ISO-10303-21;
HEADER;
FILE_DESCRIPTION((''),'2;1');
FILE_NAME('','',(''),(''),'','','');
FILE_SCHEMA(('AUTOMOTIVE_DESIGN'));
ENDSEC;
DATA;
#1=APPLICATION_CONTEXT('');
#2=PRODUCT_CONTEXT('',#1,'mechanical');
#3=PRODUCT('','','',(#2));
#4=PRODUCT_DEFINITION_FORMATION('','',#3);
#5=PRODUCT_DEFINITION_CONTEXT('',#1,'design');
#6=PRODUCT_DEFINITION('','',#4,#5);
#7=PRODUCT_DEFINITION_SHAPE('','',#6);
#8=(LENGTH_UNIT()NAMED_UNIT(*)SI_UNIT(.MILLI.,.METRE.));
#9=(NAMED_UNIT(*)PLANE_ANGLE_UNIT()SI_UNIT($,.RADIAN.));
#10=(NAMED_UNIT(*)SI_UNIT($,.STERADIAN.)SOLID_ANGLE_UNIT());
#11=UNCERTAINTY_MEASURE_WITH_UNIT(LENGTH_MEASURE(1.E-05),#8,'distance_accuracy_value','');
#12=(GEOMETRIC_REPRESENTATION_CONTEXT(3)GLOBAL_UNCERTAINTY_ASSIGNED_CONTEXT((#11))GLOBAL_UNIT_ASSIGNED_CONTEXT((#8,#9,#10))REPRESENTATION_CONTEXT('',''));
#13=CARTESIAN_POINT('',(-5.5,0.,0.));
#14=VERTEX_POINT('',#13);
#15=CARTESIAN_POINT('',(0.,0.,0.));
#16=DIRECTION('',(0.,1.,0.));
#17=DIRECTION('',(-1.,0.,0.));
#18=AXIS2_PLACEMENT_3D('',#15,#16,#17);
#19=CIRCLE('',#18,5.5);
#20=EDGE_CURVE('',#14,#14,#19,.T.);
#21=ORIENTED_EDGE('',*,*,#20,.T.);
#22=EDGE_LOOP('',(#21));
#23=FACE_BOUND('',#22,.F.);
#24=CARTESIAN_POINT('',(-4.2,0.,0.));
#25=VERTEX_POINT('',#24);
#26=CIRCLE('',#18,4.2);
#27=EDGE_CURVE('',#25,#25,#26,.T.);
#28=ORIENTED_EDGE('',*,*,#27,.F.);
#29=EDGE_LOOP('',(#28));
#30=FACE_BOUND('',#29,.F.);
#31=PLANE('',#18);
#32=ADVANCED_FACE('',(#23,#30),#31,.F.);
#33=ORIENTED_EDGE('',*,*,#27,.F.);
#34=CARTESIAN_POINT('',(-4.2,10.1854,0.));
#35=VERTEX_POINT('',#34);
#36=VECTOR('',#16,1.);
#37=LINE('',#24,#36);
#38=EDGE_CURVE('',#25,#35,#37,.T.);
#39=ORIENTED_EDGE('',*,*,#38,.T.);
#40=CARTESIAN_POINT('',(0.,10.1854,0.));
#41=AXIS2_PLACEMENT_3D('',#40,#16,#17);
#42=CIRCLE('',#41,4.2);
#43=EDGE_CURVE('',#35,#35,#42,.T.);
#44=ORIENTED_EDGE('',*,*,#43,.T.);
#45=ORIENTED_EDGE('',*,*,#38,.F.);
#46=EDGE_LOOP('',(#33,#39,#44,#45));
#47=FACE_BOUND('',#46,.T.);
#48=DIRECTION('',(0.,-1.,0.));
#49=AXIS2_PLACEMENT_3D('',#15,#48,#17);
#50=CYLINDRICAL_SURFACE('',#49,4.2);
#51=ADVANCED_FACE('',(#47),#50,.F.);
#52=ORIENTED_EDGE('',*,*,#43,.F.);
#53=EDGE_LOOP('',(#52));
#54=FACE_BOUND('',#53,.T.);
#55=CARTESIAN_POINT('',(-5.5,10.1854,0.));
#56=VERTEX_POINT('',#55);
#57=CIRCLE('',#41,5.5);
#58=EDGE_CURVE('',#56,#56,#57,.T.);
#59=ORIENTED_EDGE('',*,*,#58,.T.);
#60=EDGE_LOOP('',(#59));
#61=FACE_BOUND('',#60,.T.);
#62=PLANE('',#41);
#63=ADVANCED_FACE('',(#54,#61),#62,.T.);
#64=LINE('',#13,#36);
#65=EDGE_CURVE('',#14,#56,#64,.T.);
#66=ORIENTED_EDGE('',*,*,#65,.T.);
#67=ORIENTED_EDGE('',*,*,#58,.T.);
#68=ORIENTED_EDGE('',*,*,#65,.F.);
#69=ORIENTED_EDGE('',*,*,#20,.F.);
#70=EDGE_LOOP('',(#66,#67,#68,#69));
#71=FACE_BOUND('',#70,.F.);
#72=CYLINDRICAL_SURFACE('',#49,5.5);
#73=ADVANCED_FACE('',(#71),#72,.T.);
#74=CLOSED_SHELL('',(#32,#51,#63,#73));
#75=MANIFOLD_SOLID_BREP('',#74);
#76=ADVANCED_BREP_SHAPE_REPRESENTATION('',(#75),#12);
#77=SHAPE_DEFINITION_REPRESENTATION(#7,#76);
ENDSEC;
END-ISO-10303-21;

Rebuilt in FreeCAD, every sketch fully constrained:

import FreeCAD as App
import Part
import Sketcher
from FreeCAD import Vector

doc = App.newDocument("Part")
params = doc.addObject("Spreadsheet::Sheet", "Params")
for row, (alias, value) in enumerate([
    ("sketch1_diameter", "11 mm"),
    ("sketch1_diameter2", "8.4 mm"),
    ("pad1_length", "10.1854 mm"),
], start=1):
    params.set(f"A{row}", alias)
    params.set(f"B{row}", "=" + value)
    params.setAlias(f"B{row}", alias)

body = doc.addObject("PartDesign::Body", "Body")

# Sketch on XZ plane
sketch1 = body.newObject("Sketcher::SketchObject", "Sketch")
sketch1.AttachmentSupport = (doc.getObject("XZ_Plane"), [""])
sketch1.MapMode = "FlatFace"
sketch1.addGeometry(Part.Circle(Vector(0, 0, 0), Vector(0, 0, 1), 5.5), False)
sketch1.addGeometry(Part.Circle(Vector(0, 0, 0), Vector(0, 0, 1), 4.2), False)
sketch1.addConstraint(Sketcher.Constraint("Coincident", 0, 3, -1, 1))
sketch1.addConstraint(Sketcher.Constraint("Coincident", 1, 3, -1, 1))
sketch1.addConstraint(Sketcher.Constraint("Diameter", 0, 11.0))
sketch1.addConstraint(Sketcher.Constraint("Diameter", 1, 8.4))
sketch1.setExpression("Constraints[2]", "Params.sketch1_diameter")
sketch1.setExpression("Constraints[3]", "Params.sketch1_diameter2")
pad1 = body.newObject("PartDesign::Pad", "Pad")
pad1.Profile = sketch1
pad1.setExpression("Length", "Params.pad1_length")
pad1.Reversed = True

doc.recompute()
